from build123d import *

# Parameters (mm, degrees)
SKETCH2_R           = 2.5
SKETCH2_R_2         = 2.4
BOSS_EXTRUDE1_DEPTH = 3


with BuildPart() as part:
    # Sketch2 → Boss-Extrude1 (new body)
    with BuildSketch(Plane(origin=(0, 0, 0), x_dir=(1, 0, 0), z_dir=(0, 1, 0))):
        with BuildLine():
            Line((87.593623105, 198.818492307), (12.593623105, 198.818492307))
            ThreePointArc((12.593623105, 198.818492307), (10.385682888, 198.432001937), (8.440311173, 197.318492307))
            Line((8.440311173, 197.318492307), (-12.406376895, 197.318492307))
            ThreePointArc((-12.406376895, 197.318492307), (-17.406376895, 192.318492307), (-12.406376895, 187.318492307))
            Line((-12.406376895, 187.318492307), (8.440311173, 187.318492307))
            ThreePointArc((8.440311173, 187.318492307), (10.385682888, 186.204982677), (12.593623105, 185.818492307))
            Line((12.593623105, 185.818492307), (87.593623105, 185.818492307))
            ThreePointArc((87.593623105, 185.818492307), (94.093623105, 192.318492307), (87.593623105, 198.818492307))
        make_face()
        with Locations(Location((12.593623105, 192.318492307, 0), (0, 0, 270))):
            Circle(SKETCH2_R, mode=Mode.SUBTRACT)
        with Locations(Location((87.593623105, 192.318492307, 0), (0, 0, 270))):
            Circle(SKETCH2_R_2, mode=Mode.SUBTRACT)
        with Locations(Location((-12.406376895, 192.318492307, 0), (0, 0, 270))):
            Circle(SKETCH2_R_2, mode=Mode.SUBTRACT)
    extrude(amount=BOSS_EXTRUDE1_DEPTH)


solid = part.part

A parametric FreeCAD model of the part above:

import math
import FreeCAD as App
import Part
import Sketcher

V = App.Vector

doc = App.newDocument("Part")
body = doc.addObject("PartDesign::Body", "Body")

sketch1 = doc.addObject("Sketcher::SketchObject", "Sketch")
body.addObject(sketch1)
sketch1.AttachmentSupport = (doc.XZ_Plane, [""])
sketch1.MapMode = "FlatFace"
sketch1.addGeometry([
    Part.LineSegment(V(87.6, -198.8, 0), V(12.6, -198.8, 0)),
    Part.ArcOfCircle(Part.Circle(V(12.6, -192.3, 0), V(0, 0, 1), 6.5), math.radians(-130), math.radians(-90)),
    Part.LineSegment(V(8.4, -197.3, 0), V(-12.4, -197.3, 0)),
    Part.ArcOfCircle(Part.Circle(V(-12.4, -192.3, 0), V(0, 0, 1), 5), math.radians(90), math.radians(270)),
    Part.LineSegment(V(-12.4, -187.3, 0), V(8.4, -187.3, 0)),
    Part.ArcOfCircle(Part.Circle(V(12.6, -192.3, 0), V(0, 0, 1), 6.5), math.radians(90), math.radians(130)),
    Part.LineSegment(V(12.6, -185.8, 0), V(87.6, -185.8, 0)),
    Part.ArcOfCircle(Part.Circle(V(87.6, -192.3, 0), V(0, 0, 1), 6.5), math.radians(-90), math.radians(90)),
    Part.Circle(V(-12.4, -192.3, 0), V(0, 0, 1), 2.4),
    Part.Circle(V(12.6, -192.3, 0), V(0, 0, 1), 2.5),
    Part.Circle(V(87.6, -192.3, 0), V(0, 0, 1), 2.4),
], False)
sketch1.addConstraint([
    Sketcher.Constraint("Tangent", 0, 2, 1, 2),
    Sketcher.Constraint("Coincident", 1, 1, 2, 1),
    Sketcher.Constraint("Tangent", 2, 2, 3, 2),
    Sketcher.Constraint("Tangent", 3, 1, 4, 1),
    Sketcher.Constraint("Coincident", 4, 2, 5, 2),
    Sketcher.Constraint("Tangent", 5, 1, 6, 1),
    Sketcher.Constraint("Tangent", 6, 2, 7, 2),
    Sketcher.Constraint("Tangent", 7, 1, 0, 1),
    Sketcher.Constraint("Horizontal", 0),
    Sketcher.Constraint("Horizontal", 2),
    Sketcher.Constraint("Horizontal", 4),
    Sketcher.Constraint("Horizontal", 6),
    Sketcher.Constraint("Coincident", 5, 3, 1, 3),
    Sketcher.Constraint("Coincident", 8, 3, 3, 3),
    Sketcher.Constraint("Coincident", 9, 3, 1, 3),
    Sketcher.Constraint("Coincident", 10, 3, 7, 3),
    Sketcher.Constraint("Equal", 1, 5),
    Sketcher.Constraint("Equal", 8, 10),
    Sketcher.Constraint("Horizontal", 1, 3, 3, 3),
    Sketcher.Constraint("Diameter", 9, 5.0),
    Sketcher.Constraint("Radius", 3, 5.0),
    Sketcher.Constraint("Diameter", 8, 4.8),
    Sketcher.Constraint("Radius", 1, 6.5),
    Sketcher.Constraint("DistanceX", 0, 2, 0, 1, 75.0),
    Sketcher.Constraint("DistanceX", 3, 3, 1, 3, 25.0),
    Sketcher.Constraint("DistanceX", -1, 1, 1, 1, 8.440311),
    Sketcher.Constraint("DistanceY", 1, 3, -1, 1, 192.318492),
])
pad1 = doc.addObject("PartDesign::Pad", "Pad")
body.addObject(pad1)
pad1.Profile = sketch1
pad1.Length = 3
pad1.Reversed = True

doc.recompute()
